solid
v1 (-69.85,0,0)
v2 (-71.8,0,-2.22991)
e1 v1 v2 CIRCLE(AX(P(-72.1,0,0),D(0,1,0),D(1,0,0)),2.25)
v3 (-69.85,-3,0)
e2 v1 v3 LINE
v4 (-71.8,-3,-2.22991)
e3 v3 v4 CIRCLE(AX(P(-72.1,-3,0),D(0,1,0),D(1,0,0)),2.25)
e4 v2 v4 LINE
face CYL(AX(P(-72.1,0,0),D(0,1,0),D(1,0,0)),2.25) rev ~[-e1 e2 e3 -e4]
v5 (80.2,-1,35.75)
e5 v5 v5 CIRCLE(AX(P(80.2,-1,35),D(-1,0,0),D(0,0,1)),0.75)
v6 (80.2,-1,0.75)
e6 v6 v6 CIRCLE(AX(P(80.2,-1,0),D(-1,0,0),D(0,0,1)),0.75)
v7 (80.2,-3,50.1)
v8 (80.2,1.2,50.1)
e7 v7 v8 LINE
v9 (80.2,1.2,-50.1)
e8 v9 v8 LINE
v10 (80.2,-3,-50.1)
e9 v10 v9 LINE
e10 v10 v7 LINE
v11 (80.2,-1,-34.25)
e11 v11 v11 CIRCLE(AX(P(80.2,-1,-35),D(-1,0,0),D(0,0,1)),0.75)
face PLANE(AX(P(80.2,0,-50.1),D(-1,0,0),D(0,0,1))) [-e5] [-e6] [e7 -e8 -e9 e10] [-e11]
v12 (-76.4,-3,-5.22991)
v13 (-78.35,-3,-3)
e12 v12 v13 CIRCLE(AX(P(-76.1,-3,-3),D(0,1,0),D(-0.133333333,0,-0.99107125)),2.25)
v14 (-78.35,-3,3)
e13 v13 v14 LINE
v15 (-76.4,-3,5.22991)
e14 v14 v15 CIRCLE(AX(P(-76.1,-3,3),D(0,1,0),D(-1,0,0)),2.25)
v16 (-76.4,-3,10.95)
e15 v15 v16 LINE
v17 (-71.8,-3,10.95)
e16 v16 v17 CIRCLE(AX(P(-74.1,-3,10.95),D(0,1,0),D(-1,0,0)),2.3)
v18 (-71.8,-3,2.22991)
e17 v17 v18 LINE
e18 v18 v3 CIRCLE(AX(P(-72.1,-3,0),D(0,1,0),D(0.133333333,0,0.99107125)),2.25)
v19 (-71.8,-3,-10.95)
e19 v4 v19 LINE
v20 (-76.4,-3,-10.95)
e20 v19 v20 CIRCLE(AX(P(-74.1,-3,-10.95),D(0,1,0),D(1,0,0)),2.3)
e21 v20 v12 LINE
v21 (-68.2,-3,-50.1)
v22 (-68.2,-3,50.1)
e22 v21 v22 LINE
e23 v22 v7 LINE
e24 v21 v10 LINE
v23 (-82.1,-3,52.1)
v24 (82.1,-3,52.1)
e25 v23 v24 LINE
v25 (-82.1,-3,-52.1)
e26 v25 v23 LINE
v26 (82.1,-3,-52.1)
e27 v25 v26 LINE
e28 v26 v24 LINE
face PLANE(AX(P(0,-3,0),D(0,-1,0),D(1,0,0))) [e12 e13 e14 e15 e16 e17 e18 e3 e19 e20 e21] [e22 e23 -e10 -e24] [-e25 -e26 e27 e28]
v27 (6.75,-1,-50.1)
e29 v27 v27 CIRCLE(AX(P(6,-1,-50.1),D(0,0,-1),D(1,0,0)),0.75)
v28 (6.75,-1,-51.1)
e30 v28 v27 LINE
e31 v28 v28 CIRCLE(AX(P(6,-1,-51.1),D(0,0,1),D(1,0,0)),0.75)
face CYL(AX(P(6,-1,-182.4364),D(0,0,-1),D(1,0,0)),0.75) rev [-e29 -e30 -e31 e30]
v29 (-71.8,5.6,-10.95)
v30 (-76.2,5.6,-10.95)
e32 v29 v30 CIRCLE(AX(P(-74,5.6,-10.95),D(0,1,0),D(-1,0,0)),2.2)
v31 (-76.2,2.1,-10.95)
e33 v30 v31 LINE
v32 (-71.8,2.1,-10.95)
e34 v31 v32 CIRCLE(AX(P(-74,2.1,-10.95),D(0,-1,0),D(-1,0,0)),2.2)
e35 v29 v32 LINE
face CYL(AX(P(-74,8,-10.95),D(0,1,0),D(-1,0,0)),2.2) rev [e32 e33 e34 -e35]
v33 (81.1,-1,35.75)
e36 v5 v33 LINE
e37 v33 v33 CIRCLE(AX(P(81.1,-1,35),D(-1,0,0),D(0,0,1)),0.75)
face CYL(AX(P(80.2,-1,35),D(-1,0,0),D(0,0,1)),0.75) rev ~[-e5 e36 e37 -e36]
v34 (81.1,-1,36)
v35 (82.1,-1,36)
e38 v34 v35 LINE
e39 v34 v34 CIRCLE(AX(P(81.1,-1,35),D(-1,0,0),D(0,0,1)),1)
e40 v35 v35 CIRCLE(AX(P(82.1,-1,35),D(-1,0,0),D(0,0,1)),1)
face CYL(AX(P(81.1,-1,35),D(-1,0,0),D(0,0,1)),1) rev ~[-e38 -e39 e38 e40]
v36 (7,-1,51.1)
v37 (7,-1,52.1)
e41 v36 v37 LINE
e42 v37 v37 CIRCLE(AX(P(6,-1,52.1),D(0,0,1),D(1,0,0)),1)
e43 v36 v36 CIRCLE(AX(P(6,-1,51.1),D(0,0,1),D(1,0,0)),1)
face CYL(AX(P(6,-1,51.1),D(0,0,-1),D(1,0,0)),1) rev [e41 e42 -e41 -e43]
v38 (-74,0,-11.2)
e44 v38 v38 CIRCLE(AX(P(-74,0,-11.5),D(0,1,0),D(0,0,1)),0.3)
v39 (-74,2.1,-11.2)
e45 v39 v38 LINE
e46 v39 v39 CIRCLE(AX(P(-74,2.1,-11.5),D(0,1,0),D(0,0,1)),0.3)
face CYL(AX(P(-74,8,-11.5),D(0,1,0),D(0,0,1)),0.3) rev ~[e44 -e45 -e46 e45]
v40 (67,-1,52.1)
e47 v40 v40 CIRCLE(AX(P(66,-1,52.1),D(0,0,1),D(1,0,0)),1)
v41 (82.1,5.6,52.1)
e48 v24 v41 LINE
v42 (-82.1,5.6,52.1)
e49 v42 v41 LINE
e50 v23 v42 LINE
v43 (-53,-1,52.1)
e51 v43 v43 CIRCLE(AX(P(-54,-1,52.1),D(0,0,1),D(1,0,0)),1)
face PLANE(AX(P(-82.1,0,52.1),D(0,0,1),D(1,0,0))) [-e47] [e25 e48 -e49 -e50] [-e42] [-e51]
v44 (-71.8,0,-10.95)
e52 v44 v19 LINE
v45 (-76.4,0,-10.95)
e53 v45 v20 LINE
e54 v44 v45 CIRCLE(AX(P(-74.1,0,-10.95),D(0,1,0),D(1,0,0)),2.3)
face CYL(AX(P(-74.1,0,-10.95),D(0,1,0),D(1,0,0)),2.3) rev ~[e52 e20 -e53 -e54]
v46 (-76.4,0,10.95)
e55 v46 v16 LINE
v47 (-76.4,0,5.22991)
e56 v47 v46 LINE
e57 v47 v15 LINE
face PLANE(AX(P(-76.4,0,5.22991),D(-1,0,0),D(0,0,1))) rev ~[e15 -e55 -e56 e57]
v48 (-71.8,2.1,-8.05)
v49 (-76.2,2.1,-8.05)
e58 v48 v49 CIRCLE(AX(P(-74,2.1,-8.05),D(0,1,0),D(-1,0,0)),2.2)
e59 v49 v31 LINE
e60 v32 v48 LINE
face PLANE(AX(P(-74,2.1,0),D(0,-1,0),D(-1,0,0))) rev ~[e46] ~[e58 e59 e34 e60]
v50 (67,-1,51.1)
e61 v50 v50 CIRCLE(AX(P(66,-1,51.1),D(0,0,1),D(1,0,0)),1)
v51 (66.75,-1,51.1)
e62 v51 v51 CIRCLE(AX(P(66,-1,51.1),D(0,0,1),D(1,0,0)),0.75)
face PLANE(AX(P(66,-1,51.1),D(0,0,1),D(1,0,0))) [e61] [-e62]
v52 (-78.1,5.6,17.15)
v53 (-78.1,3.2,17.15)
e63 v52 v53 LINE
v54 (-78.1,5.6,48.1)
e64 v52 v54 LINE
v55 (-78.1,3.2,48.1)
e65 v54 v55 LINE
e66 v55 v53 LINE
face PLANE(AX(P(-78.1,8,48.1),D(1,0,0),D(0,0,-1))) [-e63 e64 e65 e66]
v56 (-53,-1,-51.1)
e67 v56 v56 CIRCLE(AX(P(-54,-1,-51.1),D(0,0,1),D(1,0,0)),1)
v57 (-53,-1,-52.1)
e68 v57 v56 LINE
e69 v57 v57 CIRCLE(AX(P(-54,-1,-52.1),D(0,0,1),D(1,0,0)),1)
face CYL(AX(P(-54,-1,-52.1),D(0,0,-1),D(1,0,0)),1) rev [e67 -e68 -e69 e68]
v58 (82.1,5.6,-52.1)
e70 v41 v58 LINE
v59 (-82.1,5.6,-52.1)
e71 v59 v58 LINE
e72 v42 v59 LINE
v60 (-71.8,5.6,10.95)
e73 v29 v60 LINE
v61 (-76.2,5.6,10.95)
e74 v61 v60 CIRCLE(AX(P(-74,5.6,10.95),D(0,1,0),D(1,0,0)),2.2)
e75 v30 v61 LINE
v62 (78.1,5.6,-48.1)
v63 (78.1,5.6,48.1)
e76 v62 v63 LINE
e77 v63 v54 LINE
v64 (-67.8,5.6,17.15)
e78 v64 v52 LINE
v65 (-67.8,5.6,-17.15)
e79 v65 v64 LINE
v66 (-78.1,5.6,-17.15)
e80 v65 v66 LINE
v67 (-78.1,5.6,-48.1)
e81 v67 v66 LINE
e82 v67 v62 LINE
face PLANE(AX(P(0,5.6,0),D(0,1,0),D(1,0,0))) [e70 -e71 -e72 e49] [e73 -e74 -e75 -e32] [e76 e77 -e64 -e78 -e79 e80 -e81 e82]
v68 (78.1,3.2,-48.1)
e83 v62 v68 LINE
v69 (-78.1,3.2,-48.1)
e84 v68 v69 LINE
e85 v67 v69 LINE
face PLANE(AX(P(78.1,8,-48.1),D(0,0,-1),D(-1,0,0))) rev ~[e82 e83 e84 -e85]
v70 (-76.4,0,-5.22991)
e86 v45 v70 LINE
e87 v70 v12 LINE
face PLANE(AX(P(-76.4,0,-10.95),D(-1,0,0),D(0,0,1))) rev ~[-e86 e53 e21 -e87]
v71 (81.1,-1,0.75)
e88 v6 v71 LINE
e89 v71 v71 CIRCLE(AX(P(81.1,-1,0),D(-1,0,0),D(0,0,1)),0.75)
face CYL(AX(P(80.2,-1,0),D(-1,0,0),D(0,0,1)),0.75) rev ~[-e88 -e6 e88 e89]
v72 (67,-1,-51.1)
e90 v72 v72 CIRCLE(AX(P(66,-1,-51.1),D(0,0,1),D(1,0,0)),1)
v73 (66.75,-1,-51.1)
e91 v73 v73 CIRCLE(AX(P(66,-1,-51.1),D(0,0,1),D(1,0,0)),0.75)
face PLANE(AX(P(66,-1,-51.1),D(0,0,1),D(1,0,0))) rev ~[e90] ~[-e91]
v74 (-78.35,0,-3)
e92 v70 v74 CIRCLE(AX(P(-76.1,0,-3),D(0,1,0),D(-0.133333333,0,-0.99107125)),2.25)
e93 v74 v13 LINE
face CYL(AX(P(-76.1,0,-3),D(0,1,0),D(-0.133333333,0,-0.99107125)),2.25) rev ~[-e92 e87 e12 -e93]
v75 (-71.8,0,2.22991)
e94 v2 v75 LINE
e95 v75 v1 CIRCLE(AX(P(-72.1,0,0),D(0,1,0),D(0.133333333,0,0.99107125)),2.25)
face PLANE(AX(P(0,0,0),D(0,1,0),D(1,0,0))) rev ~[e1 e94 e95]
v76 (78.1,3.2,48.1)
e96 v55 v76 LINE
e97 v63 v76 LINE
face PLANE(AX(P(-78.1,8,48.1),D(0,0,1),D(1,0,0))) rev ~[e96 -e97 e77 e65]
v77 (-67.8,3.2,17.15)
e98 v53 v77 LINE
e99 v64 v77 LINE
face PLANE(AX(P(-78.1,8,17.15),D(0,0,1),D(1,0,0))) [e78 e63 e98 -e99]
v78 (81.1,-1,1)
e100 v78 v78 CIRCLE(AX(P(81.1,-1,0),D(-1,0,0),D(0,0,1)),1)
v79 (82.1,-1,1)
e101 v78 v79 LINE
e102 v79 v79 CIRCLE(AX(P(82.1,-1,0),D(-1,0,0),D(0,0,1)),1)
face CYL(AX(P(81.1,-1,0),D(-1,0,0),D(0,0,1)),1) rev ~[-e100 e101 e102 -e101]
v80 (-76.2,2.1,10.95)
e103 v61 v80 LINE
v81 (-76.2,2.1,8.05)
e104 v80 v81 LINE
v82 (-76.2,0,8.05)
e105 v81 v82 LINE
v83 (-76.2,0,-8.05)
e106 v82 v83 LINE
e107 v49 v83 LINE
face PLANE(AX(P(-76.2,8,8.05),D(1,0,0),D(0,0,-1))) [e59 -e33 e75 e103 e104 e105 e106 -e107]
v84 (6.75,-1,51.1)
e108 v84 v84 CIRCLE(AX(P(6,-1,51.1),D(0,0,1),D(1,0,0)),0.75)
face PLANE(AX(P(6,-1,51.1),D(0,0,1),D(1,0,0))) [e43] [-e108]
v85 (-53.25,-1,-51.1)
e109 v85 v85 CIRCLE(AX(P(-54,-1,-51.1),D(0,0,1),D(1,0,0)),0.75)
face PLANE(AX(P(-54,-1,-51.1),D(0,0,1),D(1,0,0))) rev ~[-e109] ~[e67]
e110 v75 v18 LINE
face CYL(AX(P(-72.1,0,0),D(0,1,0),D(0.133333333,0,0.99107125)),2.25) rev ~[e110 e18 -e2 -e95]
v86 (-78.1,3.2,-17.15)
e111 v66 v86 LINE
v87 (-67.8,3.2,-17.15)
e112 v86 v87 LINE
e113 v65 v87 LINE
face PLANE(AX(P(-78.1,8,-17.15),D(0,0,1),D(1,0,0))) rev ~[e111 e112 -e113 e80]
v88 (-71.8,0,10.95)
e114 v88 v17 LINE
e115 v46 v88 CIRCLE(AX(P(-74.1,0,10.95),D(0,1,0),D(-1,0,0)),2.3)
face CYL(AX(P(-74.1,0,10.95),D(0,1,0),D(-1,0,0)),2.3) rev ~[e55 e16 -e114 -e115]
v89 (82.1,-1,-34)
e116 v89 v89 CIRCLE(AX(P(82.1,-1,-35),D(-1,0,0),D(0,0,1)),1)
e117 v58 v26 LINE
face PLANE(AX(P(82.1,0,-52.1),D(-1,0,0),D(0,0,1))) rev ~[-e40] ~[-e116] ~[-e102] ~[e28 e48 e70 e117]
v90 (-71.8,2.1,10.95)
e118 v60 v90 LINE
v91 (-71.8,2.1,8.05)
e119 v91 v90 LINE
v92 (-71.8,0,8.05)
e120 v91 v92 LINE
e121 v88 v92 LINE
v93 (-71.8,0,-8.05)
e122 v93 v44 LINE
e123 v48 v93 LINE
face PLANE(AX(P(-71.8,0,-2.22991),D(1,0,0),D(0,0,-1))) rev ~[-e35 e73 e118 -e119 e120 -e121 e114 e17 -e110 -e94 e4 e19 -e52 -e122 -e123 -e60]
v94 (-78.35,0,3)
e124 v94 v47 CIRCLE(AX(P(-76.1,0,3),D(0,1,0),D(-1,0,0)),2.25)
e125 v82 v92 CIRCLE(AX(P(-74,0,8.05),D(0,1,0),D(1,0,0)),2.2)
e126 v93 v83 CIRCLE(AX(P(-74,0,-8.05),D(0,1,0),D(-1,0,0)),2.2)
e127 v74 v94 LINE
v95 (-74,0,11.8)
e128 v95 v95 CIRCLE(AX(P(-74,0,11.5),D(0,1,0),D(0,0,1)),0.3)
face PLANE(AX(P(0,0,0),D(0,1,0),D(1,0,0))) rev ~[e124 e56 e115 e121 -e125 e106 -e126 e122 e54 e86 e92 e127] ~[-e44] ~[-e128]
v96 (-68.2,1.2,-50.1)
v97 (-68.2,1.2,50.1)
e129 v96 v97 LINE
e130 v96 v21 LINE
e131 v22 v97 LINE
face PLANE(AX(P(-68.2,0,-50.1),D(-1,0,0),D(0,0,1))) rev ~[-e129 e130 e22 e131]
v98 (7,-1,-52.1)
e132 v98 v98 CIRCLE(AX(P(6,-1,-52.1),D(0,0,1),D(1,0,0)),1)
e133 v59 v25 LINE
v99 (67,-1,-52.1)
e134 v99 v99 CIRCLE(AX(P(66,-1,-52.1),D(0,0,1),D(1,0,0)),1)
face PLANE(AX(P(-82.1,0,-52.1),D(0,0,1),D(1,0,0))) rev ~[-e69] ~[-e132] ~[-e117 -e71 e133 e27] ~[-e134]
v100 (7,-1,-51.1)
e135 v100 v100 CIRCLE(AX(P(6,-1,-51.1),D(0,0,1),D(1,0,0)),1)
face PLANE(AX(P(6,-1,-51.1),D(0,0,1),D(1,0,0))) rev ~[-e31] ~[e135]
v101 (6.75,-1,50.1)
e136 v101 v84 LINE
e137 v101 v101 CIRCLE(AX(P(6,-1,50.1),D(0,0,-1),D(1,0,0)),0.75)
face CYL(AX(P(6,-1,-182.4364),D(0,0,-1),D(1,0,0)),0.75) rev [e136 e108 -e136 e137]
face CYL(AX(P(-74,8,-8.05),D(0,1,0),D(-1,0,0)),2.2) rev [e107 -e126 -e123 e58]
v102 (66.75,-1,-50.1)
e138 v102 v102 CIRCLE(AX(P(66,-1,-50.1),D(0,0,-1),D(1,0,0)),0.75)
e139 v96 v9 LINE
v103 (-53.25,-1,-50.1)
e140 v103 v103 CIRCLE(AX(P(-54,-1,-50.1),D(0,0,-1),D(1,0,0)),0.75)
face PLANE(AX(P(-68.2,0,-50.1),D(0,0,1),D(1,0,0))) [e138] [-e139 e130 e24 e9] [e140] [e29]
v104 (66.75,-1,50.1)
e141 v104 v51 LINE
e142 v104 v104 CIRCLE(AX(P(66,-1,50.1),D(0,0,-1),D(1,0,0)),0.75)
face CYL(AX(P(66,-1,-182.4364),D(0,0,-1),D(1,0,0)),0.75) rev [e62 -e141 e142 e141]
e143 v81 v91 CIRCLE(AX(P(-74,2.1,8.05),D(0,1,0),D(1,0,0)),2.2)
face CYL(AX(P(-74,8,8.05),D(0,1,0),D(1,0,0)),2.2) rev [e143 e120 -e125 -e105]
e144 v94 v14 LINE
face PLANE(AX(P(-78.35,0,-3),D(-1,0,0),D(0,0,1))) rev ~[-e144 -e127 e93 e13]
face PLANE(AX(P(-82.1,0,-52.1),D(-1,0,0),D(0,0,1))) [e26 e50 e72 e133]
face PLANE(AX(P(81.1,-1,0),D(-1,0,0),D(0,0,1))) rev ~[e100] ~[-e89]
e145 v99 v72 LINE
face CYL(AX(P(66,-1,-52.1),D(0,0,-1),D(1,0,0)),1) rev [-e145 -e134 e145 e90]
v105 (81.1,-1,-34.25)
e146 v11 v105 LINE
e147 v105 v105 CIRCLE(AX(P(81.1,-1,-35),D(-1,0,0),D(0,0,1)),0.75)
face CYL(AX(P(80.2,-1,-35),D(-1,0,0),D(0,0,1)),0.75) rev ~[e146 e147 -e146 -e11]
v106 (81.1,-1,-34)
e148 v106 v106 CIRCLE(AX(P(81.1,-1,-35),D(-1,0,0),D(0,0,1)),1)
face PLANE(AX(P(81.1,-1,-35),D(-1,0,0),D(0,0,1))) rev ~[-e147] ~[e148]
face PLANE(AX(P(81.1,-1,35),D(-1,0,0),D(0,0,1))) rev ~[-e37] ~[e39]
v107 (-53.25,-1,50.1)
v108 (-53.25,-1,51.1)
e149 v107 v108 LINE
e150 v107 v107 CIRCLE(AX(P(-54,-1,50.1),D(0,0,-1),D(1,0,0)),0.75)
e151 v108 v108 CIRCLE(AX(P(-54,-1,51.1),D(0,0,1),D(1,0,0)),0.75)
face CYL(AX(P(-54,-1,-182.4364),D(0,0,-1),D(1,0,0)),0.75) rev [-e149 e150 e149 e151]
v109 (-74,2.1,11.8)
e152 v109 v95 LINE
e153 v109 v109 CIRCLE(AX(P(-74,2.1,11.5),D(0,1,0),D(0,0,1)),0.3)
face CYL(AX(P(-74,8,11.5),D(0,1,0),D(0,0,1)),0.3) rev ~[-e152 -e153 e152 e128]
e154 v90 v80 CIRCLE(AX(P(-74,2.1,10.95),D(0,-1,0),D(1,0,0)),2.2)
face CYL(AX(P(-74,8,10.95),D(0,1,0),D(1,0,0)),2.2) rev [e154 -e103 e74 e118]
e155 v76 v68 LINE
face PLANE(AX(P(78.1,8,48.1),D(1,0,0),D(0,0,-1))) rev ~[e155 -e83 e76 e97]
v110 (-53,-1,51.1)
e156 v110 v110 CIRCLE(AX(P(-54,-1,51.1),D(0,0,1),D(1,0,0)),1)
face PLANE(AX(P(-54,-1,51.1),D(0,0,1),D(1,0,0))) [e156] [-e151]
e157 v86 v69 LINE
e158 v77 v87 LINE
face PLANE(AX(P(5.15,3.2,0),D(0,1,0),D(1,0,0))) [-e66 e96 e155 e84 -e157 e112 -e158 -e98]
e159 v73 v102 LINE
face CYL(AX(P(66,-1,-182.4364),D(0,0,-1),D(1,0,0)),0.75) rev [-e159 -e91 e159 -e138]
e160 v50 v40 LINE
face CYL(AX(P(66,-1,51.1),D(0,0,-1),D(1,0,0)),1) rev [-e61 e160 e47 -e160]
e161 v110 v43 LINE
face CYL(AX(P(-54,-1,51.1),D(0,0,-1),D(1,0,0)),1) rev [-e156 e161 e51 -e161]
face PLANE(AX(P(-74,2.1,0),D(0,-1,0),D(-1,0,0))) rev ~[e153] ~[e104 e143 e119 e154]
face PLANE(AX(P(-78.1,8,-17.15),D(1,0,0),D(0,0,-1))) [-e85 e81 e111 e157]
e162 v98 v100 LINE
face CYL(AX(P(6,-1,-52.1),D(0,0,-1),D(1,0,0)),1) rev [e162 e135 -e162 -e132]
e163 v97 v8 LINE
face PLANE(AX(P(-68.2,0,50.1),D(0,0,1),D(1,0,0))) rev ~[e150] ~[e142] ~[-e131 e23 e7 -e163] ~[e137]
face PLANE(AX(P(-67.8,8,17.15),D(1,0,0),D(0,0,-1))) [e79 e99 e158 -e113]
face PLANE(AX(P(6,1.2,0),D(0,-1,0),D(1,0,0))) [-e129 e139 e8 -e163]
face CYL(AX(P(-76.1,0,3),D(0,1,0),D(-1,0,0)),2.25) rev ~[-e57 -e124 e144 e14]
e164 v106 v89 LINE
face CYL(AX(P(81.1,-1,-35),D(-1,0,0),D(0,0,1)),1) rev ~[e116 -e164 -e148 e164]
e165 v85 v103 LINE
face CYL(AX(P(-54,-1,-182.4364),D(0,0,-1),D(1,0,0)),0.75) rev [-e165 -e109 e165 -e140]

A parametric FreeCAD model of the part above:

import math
import FreeCAD as App
import Part
import Sketcher

doc = App.newDocument("Part")
body = doc.addObject("PartDesign::Body", "Body")

# Sketch on XZ plane
sketch1 = body.newObject("Sketcher::SketchObject", "Sketch")
sketch1.AttachmentSupport = (doc.getObject("XZ_Plane"), [""])
sketch1.MapMode = "FlatFace"
sketch1.addGeometry([
    Part.LineSegment(App.Vector(-82.1, -52.1, 0), App.Vector(-82.1, 52.1, 0)),
    Part.LineSegment(App.Vector(-82.1, 52.1, 0), App.Vector(82.1, 52.1, 0)),
    Part.LineSegment(App.Vector(82.1, 52.1, 0), App.Vector(82.1, -52.1, 0)),
    Part.LineSegment(App.Vector(82.1, -52.1, 0), App.Vector(-82.1, -52.1, 0)),
], False)
sketch1.addConstraint([
    Sketcher.Constraint("Coincident", 0, 2, 1, 1),
    Sketcher.Constraint("Coincident", 1, 2, 2, 1),
    Sketcher.Constraint("Coincident", 2, 2, 3, 1),
    Sketcher.Constraint("Coincident", 3, 2, 0, 1),
    Sketcher.Constraint("Vertical", 0),
    Sketcher.Constraint("Horizontal", 1),
    Sketcher.Constraint("Vertical", 2),
    Sketcher.Constraint("Horizontal", 3),
    Sketcher.Constraint("Symmetric", 0, 2, 2, 2, -1, 1),
    Sketcher.Constraint("DistanceX", 1, 1, 1, 2, 164.2),
    Sketcher.Constraint("DistanceY", 0, 1, 0, 2, 104.2),
])
pad1 = body.newObject("PartDesign::Pad", "Pad")
pad1.Profile = sketch1
pad1.Length = 8
pad1.Reversed = True

# Sketch on XZ plane
sketch2 = body.newObject("Sketcher::SketchObject", "Sketch001")
sketch2.AttachmentSupport = (doc.getObject("XZ_Plane"), [""])
sketch2.MapMode = "FlatFace"
sketch2.AttachmentOffset = App.Placement(App.Vector(0, 0, -8), App.Rotation())
sketch2.addGeometry([
    Part.Circle(App.Vector(-74, -11.5, 0), App.Vector(0, 0, 1), 0.3),  # 0
    Part.Circle(App.Vector(-74, 11.5, 0), App.Vector(0, 0, 1), 0.3),  # 1
    Part.LineSegment(App.Vector(-76.2, -8.05, 0), App.Vector(-76.2, 8.05, 0)),  # 2
    Part.ArcOfCircle(Part.Circle(App.Vector(-74, 8.05, 0), App.Vector(0, 0, 1), 2.2), math.radians(0), math.radians(180)),  # 3
    Part.LineSegment(App.Vector(-71.8, 8.05, 0), App.Vector(-71.8, -8.05, 0)),  # 4
    Part.ArcOfCircle(Part.Circle(App.Vector(-74, -8.05, 0), App.Vector(0, 0, 1), 2.2), math.radians(180), math.radians(360)),  # 5
], False)
sketch2.addConstraint([
    Sketcher.Constraint("Tangent", 2, 2, 3, 2),
    Sketcher.Constraint("Tangent", 3, 1, 4, 1),
    Sketcher.Constraint("Tangent", 4, 2, 5, 2),
    Sketcher.Constraint("Tangent", 5, 1, 2, 1),
    Sketcher.Constraint("Vertical", 2),
    Sketcher.Constraint("Vertical", 4),
    Sketcher.Constraint("Equal", 0, 1),
    Sketcher.Constraint("Symmetric", 0, 3, 1, 3, -1),
    Sketcher.Constraint("Vertical", 1, 3, 3, 3),
    Sketcher.Constraint("Diameter", 0, 0.6),
    Sketcher.Constraint("Radius", 3, 2.2),
    Sketcher.Constraint("DistanceY", 2, 1, 2, 2, 16.1),
    Sketcher.Constraint("DistanceX", 0, 3, -1, 1, 74.0),
    Sketcher.Constraint("DistanceY", 0, 3, 1, 3, 23.0),
    Sketcher.Constraint("DistanceY", -1, 1, 3, 3, 8.05),
])
pocket1 = body.newObject("PartDesign::Pocket", "Pocket")
pocket1.Profile = sketch2
pocket1.Type = "ThroughAll"
pocket1.Reversed = True

# Sketch on XZ plane
sketch3 = body.newObject("Sketcher::SketchObject", "Sketch002")
sketch3.AttachmentSupport = (doc.getObject("XZ_Plane"), [""])
sketch3.MapMode = "FlatFace"
sketch3.AttachmentOffset = App.Placement(App.Vector(0, 0, -8), App.Rotation())
sketch3.addGeometry([
    Part.LineSegment(App.Vector(-71.8, 10.95, 0), App.Vector(-71.8, -10.95, 0)),
    Part.ArcOfCircle(Part.Circle(App.Vector(-74, -10.95, 0), App.Vector(0, 0, 1), 2.2), math.radians(180), math.radians(360)),
    Part.LineSegment(App.Vector(-76.2, -10.95, 0), App.Vector(-76.2, 10.95, 0)),
    Part.ArcOfCircle(Part.Circle(App.Vector(-74, 10.95, 0), App.Vector(0, 0, 1), 2.2), math.radians(0), math.radians(180)),
], False)
sketch3.addConstraint([
    Sketcher.Constraint("Tangent", 0, 2, 1, 2),
    Sketcher.Constraint("Tangent", 1, 1, 2, 1),
    Sketcher.Constraint("Tangent", 2, 2, 3, 2),
    Sketcher.Constraint("Tangent", 3, 1, 0, 1),
    Sketcher.Constraint("Vertical", 0),
    Sketcher.Constraint("Vertical", 2),
    Sketcher.Constraint("Radius", 1, 2.2),
    Sketcher.Constraint("DistanceY", 0, 2, 0, 1, 21.9),
    Sketcher.Constraint("DistanceX", 1, 3, -1, 1, 74.0),
    Sketcher.Constraint("DistanceY", 1, 3, -1, 1, 10.95),
])
pocket2 = body.newObject("PartDesign::Pocket", "Pocket001")
pocket2.Profile = sketch3
pocket2.Length = 5.9
pocket2.Reversed = True

# Sketch on XZ plane
sketch4 = body.newObject("Sketcher::SketchObject", "Sketch003")
sketch4.AttachmentSupport = (doc.getObject("XZ_Plane"), [""])
sketch4.MapMode = "FlatFace"
sketch4.addGeometry([
    Part.LineSegment(App.Vector(-68.2, 50.1, 0), App.Vector(-68.2, -50.1, 0)),
    Part.LineSegment(App.Vector(-68.2, -50.1, 0), App.Vector(80.2, -50.1, 0)),
    Part.LineSegment(App.Vector(80.2, -50.1, 0), App.Vector(80.2, 50.1, 0)),
    Part.LineSegment(App.Vector(80.2, 50.1, 0), App.Vector(-68.2, 50.1, 0)),
], False)
sketch4.addConstraint([
    Sketcher.Constraint("Coincident", 0, 2, 1, 1),
    Sketcher.Constraint("Coincident", 1, 2, 2, 1),
    Sketcher.Constraint("Coincident", 2, 2, 3, 1),
    Sketcher.Constraint("Coincident", 3, 2, 0, 1),
    Sketcher.Constraint("Vertical", 0),
    Sketcher.Constraint("Horizontal", 1),
    Sketcher.Constraint("Vertical", 2),
    Sketcher.Constraint("Horizontal", 3),
    Sketcher.Constraint("DistanceX", 1, 1, 1, 2, 148.4),
    Sketcher.Constraint("DistanceY", 0, 2, 0, 1, 100.2),
    Sketcher.Constraint("DistanceX", 0, 2, -1, 1, 68.2),
    Sketcher.Constraint("DistanceY", 0, 2, -1, 1, 50.1),
])
pocket3 = body.newObject("PartDesign::Pocket", "Pocket002")
pocket3.Profile = sketch4
pocket3.Length = 1.2

# Sketch on XZ plane
sketch5 = body.newObject("Sketcher::SketchObject", "Sketch004")
sketch5.AttachmentSupport = (doc.getObject("XZ_Plane"), [""])
sketch5.MapMode = "FlatFace"
sketch5.addGeometry([
    Part.LineSegment(App.Vector(-82.1, 52.1, 0), App.Vector(-82.1, -52.1, 0)),  # 0
    Part.LineSegment(App.Vector(-82.1, -52.1, 0), App.Vector(82.1, -52.1, 0)),  # 1
    Part.LineSegment(App.Vector(82.1, -52.1, 0), App.Vector(82.1, 52.1, 0)),  # 2
    Part.LineSegment(App.Vector(82.1, 52.1, 0), App.Vector(-82.1, 52.1, 0)),  # 3
    Part.LineSegment(App.Vector(-71.8, -2.22991, 0), App.Vector(-71.8, -10.95, 0)),  # 4
    Part.ArcOfCircle(Part.Circle(App.Vector(-74.1, -10.95, 0), App.Vector(0, 0, 1), 2.3), math.radians(180), math.radians(360)),  # 5
    Part.LineSegment(App.Vector(-76.4, -10.95, 0), App.Vector(-76.4, -5.22991, 0)),  # 6
    Part.ArcOfCircle(Part.Circle(App.Vector(-76.1, -3, 0), App.Vector(0, 0, 1), 2.25), math.radians(180), math.radians(262.337744)),  # 7
    Part.LineSegment(App.Vector(-78.35, -3, 0), App.Vector(-78.35, 3, 0)),  # 8
    Part.ArcOfCircle(Part.Circle(App.Vector(-76.1, 3, 0), App.Vector(0, 0, 1), 2.25), math.radians(97.662256), math.radians(180)),  # 9
    Part.LineSegment(App.Vector(-76.4, 5.22991, 0), App.Vector(-76.4, 10.95, 0)),  # 10
    Part.ArcOfCircle(Part.Circle(App.Vector(-74.1, 10.95, 0), App.Vector(0, 0, 1), 2.3), math.radians(0), math.radians(180)),  # 11
    Part.LineSegment(App.Vector(-71.8, 10.95, 0), App.Vector(-71.8, 2.22991, 0)),  # 12
    Part.ArcOfCircle(Part.Circle(App.Vector(-72.1, 0, 0), App.Vector(0, 0, 1), 2.25), math.radians(0), math.radians(82.337744)),  # 13
    Part.ArcOfCircle(Part.Circle(App.Vector(-72.1, 0, 0), App.Vector(0, 0, 1), 2.25), math.radians(-82.337744), math.radians(0)),  # 14
    Part.LineSegment(App.Vector(80.2, -50.1, 0), App.Vector(-68.2, -50.1, 0)),  # 15
    Part.LineSegment(App.Vector(-68.2, -50.1, 0), App.Vector(-68.2, 50.1, 0)),  # 16
    Part.LineSegment(App.Vector(-68.2, 50.1, 0), App.Vector(80.2, 50.1, 0)),  # 17
    Part.LineSegment(App.Vector(80.2, 50.1, 0), App.Vector(80.2, -50.1, 0)),  # 18
], False)
sketch5.addConstraint([
    Sketcher.Constraint("Coincident", 0, 2, 1, 1),
    Sketcher.Constraint("Coincident", 1, 2, 2, 1),
    Sketcher.Constraint("Coincident", 2, 2, 3, 1),
    Sketcher.Constraint("Coincident", 3, 2, 0, 1),
    Sketcher.Constraint("Tangent", 4, 2, 5, 2),
    Sketcher.Constraint("Tangent", 5, 1, 6, 1),
    Sketcher.Constraint("Coincident", 6, 2, 7, 2),
    Sketcher.Constraint("Tangent", 7, 1, 8, 1),
    Sketcher.Constraint("Tangent", 8, 2, 9, 2),
    Sketcher.Constraint("Coincident", 9, 1, 10, 1),
    Sketcher.Constraint("Tangent", 10, 2, 11, 2),
    Sketcher.Constraint("Tangent", 11, 1, 12, 1),
    Sketcher.Constraint("Coincident", 12, 2, 13, 2),
    Sketcher.Constraint("Tangent", 13, 1, 14, 2),
    Sketcher.Constraint("Coincident", 14, 1, 4, 1),
    Sketcher.Constraint("Coincident", 15, 2, 16, 1),
    Sketcher.Constraint("Coincident", 16, 2, 17, 1),
    Sketcher.Constraint("Coincident", 17, 2, 18, 1),
    Sketcher.Constraint("Coincident", 18, 2, 15, 1),
    Sketcher.Constraint("Vertical", 0),
    Sketcher.Constraint("Horizontal", 1),
    Sketcher.Constraint("Vertical", 2),
    Sketcher.Constraint("Horizontal", 3),
    Sketcher.Constraint("Vertical", 4),
    Sketcher.Constraint("Vertical", 6),
    Sketcher.Constraint("Vertical", 8),
    Sketcher.Constraint("Vertical", 10),
    Sketcher.Constraint("Vertical", 12),
    Sketcher.Constraint("Horizontal", 15),
    Sketcher.Constraint("Vertical", 16),
    Sketcher.Constraint("Horizontal", 17),
    Sketcher.Constraint("Vertical", 18),
    Sketcher.Constraint("Equal", 7, 9),
    Sketcher.Constraint("Equal", 5, 11),
    Sketcher.Constraint("Equal", 9, 13),
    Sketcher.Constraint("Equal", 13, 14),
    Sketcher.Constraint("Symmetric", 0, 2, 2, 2, -1, 1),
    Sketcher.Constraint("Symmetric", 5, 3, 11, 3, -1),
    Sketcher.Constraint("PointOnObject", 13, 3, -1),
    Sketcher.Constraint("PointOnObject", 13, 1, -1),
    Sketcher.Constraint("Equal", 6, 10),
    Sketcher.Constraint("Radius", 5, 2.3),
    Sketcher.Constraint("DistanceY", 8, 1, 8, 2, 6.0),
    Sketcher.Constraint("Radius", 7, 2.25),
    Sketcher.Constraint("DistanceX", 1, 1, 1, 2, 164.2),
    Sketcher.Constraint("DistanceX", 15, 2, 15, 1, 148.4),
    Sketcher.Constraint("DistanceY", 0, 2, 0, 1, 104.2),
    Sketcher.Constraint("DistanceY", 16, 1, 16, 2, 100.2),
    Sketcher.Constraint("DistanceX", 7, 3, 5, 3, 2.0),
    Sketcher.Constraint("DistanceX", 7, 3, 13, 3, 4.0),
    Sketcher.Constraint("DistanceX", 0, 2, 5, 3, 8.0),
    Sketcher.Constraint("DistanceY", 0, 2, 15, 2, 2.0),
    Sketcher.Constraint("DistanceX", 11, 1, 17, 2, 152.0),
    Sketcher.Constraint("DistanceY", 5, 3, 11, 3, 21.9),
])
pad2 = body.newObject("PartDesign::Pad", "Pad001")
pad2.Profile = sketch5
pad2.Length = 3

# Sketch on XY plane
sketch6 = body.newObject("Sketcher::SketchObject", "Sketch005")
sketch6.AttachmentSupport = (doc.getObject("XY_Plane"), [""])
sketch6.MapMode = "FlatFace"
sketch6.AttachmentOffset = App.Placement(App.Vector(0, 0, -50.1), App.Rotation())
sketch6.addGeometry([
    Part.Circle(App.Vector(6, -1, 0), App.Vector(0, 0, 1), 0.75),
    Part.Circle(App.Vector(-54, -1, 0), App.Vector(0, 0, 1), 0.75),
    Part.Circle(App.Vector(66, -1, 0), App.Vector(0, 0, 1), 0.75),
], False)
sketch6.addConstraint([
    Sketcher.Constraint("Equal", 0, 1),
    Sketcher.Constraint("Equal", 1, 2),
    Sketcher.Constraint("Horizontal", 0, 3, 1, 3),
    Sketcher.Constraint("Horizontal", 1, 3, 2, 3),
    Sketcher.Constraint("Diameter", 0, 1.5),
    Sketcher.Constraint("DistanceX", -1, 1, 0, 3, 6.0),
    Sketcher.Constraint("DistanceY", 0, 3, -1, 1, 1.0),
    Sketcher.Constraint("DistanceX", 1, 3, -1, 1, 54.0),
    Sketcher.Constraint("DistanceX", -1, 1, 2, 3, 66.0),
])
pocket4 = body.newObject("PartDesign::Pocket", "Pocket003")
pocket4.Profile = sketch6
pocket4.Type = "ThroughAll"
pocket4.Midplane = True

# Sketch on XY plane
sketch7 = body.newObject("Sketcher::SketchObject", "Sketch006")
sketch7.AttachmentSupport = (doc.getObject("XY_Plane"), [""])
sketch7.MapMode = "FlatFace"
sketch7.AttachmentOffset = App.Placement(App.Vector(0, 0, -52.1), App.Rotation())
sketch7.addGeometry([
    Part.Circle(App.Vector(6, -1, 0), App.Vector(0, 0, 1), 1),  # 0
    Part.Circle(App.Vector(6, -1, 0), App.Vector(0, 0, 1), 0.75),  # 1
    Part.Circle(App.Vector(66, -1, 0), App.Vector(0, 0, 1), 1),  # 2
    Part.Circle(App.Vector(66, -1, 0), App.Vector(0, 0, 1), 0.75),  # 3
    Part.Circle(App.Vector(-54, -1, 0), App.Vector(0, 0, 1), 1),  # 4
    Part.Circle(App.Vector(-54, -1, 0), App.Vector(0, 0, 1), 0.75),  # 5
], False)
sketch7.addConstraint([
    Sketcher.Constraint("Coincident", 1, 3, 0, 3),
    Sketcher.Constraint("Coincident", 3, 3, 2, 3),
    Sketcher.Constraint("Coincident", 5, 3, 4, 3),
    Sketcher.Constraint("Equal", 0, 2),
    Sketcher.Constraint("Equal", 1, 3),
    Sketcher.Constraint("Equal", 2, 4),
    Sketcher.Constraint("Equal", 3, 5),
    Sketcher.Constraint("Horizontal", 1, 3, 2, 3),
    Sketcher.Constraint("Horizontal", 3, 3, 4, 3),
    Sketcher.Constraint("Diameter", 0, 2.0),
    Sketcher.Constraint("Diameter", 1, 1.5),
    Sketcher.Constraint("DistanceX", -1, 1, 0, 3, 6.0),
    Sketcher.Constraint("DistanceY", 0, 3, -1, 1, 1.0),
    Sketcher.Constraint("DistanceX", -1, 1, 2, 3, 66.0),
    Sketcher.Constraint("DistanceX", 4, 3, -1, 1, 54.0),
])
pocket5 = body.newObject("PartDesign::Pocket", "Pocket004")
pocket5.Profile = sketch7
pocket5.Length = 1
pocket5.Reversed = True

# Sketch on XY plane
sketch8 = body.newObject("Sketcher::SketchObject", "Sketch007")
sketch8.AttachmentSupport = (doc.getObject("XY_Plane"), [""])
sketch8.MapMode = "FlatFace"
sketch8.AttachmentOffset = App.Placement(App.Vector(0, 0, 51.1), App.Rotation())
sketch8.addGeometry([
    Part.Circle(App.Vector(6, -1, 0), App.Vector(0, 0, 1), 1),  # 0
    Part.Circle(App.Vector(6, -1, 0), App.Vector(0, 0, 1), 0.75),  # 1
    Part.Circle(App.Vector(66, -1, 0), App.Vector(0, 0, 1), 1),  # 2
    Part.Circle(App.Vector(66, -1, 0), App.Vector(0, 0, 1), 0.75),  # 3
    Part.Circle(App.Vector(-54, -1, 0), App.Vector(0, 0, 1), 1),  # 4
    Part.Circle(App.Vector(-54, -1, 0), App.Vector(0, 0, 1), 0.75),  # 5
], False)
sketch8.addConstraint([
    Sketcher.Constraint("Coincident", 1, 3, 0, 3),
    Sketcher.Constraint("Coincident", 3, 3, 2, 3),
    Sketcher.Constraint("Coincident", 5, 3, 4, 3),
    Sketcher.Constraint("Equal", 0, 2),
    Sketcher.Constraint("Equal", 1, 3),
    Sketcher.Constraint("Equal", 2, 4),
    Sketcher.Constraint("Equal", 3, 5),
    Sketcher.Constraint("Horizontal", 1, 3, 2, 3),
    Sketcher.Constraint("Horizontal", 3, 3, 4, 3),
    Sketcher.Constraint("Diameter", 0, 2.0),
    Sketcher.Constraint("Diameter", 1, 1.5),
    Sketcher.Constraint("DistanceX", -1, 1, 0, 3, 6.0),
    Sketcher.Constraint("DistanceY", 0, 3, -1, 1, 1.0),
    Sketcher.Constraint("DistanceX", -1, 1, 2, 3, 66.0),
    Sketcher.Constraint("DistanceX", 4, 3, -1, 1, 54.0),
])
pocket6 = body.newObject("PartDesign::Pocket", "Pocket005")
pocket6.Profile = sketch8
pocket6.Length = 1
pocket6.Reversed = True

# Sketch on YZ plane
sketch9 = body.newObject("Sketcher::SketchObject", "Sketch008")
sketch9.AttachmentSupport = (doc.getObject("YZ_Plane"), [""])
sketch9.MapMode = "FlatFace"
sketch9.AttachmentOffset = App.Placement(App.Vector(0, 0, 80.2), App.Rotation())
sketch9.addGeometry([
    Part.Circle(App.Vector(-1, -35, 0), App.Vector(0, 0, 1), 0.75),
    Part.Circle(App.Vector(-1, 0, 0), App.Vector(0, 0, 1), 0.75),
    Part.Circle(App.Vector(-1, 35, 0), App.Vector(0, 0, 1), 0.75),
], False)
sketch9.addConstraint([
    Sketcher.Constraint("Equal", 0, 1),
    Sketcher.Constraint("Equal", 1, 2),
    Sketcher.Constraint("Symmetric", 0, 3, 2, 3, -1),
    Sketcher.Constraint("PointOnObject", 1, 3, -1),
    Sketcher.Constraint("Vertical", 0, 3, 1, 3),
    Sketcher.Constraint("Diameter", 0, 1.5),
    Sketcher.Constraint("DistanceX", 0, 3, -1, 1, 1.0),
    Sketcher.Constraint("DistanceY", 0, 3, -1, 1, 35.0),
])
pocket7 = body.newObject("PartDesign::Pocket", "Pocket006")
pocket7.Profile = sketch9
pocket7.Type = "ThroughAll"
pocket7.Reversed = True

# Sketch on YZ plane
sketch10 = body.newObject("Sketcher::SketchObject", "Sketch009")
sketch10.AttachmentSupport = (doc.getObject("YZ_Plane"), [""])
sketch10.MapMode = "FlatFace"
sketch10.AttachmentOffset = App.Placement(App.Vector(0, 0, 81.1), App.Rotation())
sketch10.addGeometry([
    Part.Circle(App.Vector(-1, 0, 0), App.Vector(0, 0, 1), 1),  # 0
    Part.Circle(App.Vector(-1, 0, 0), App.Vector(0, 0, 1), 0.75),  # 1
    Part.Circle(App.Vector(-1, -35, 0), App.Vector(0, 0, 1), 1),  # 2
    Part.Circle(App.Vector(-1, -35, 0), App.Vector(0, 0, 1), 0.75),  # 3
    Part.Circle(App.Vector(-1, 35, 0), App.Vector(0, 0, 1), 1),  # 4
    Part.Circle(App.Vector(-1, 35, 0), App.Vector(0, 0, 1), 0.75),  # 5
], False)
sketch10.addConstraint([
    Sketcher.Constraint("Coincident", 1, 3, 0, 3),
    Sketcher.Constraint("Coincident", 3, 3, 2, 3),
    Sketcher.Constraint("Coincident", 5, 3, 4, 3),
    Sketcher.Constraint("Equal", 0, 2),
    Sketcher.Constraint("Equal", 1, 3),
    Sketcher.Constraint("Equal", 2, 4),
    Sketcher.Constraint("Equal", 3, 5),
    Sketcher.Constraint("Symmetric", 2, 3, 4, 3, -1),
    Sketcher.Constraint("PointOnObject", 0, 3, -1),
    Sketcher.Constraint("Vertical", 1, 3, 2, 3),
    Sketcher.Constraint("Diameter", 0, 2.0),
    Sketcher.Constraint("Diameter", 1, 1.5),
    Sketcher.Constraint("DistanceX", 0, 3, -1, 1, 1.0),
    Sketcher.Constraint("DistanceY", 2, 3, -1, 1, 35.0),
])
pocket8 = body.newObject("PartDesign::Pocket", "Pocket007")
pocket8.Profile = sketch10
pocket8.Length = 1
pocket8.Reversed = True

# Sketch on XZ plane
sketch11 = body.newObject("Sketcher::SketchObject", "Sketch010")
sketch11.AttachmentSupport = (doc.getObject("XZ_Plane"), [""])
sketch11.MapMode = "FlatFace"
sketch11.AttachmentOffset = App.Placement(App.Vector(0, 0, -8), App.Rotation())
sketch11.addGeometry([
    Part.LineSegment(App.Vector(-67.8, -17.15, 0), App.Vector(-67.8, 17.15, 0)),  # 0
    Part.LineSegment(App.Vector(-67.8, 17.15, 0), App.Vector(-78.1, 17.15, 0)),  # 1
    Part.LineSegment(App.Vector(-78.1, 17.15, 0), App.Vector(-78.1, 48.1, 0)),  # 2
    Part.LineSegment(App.Vector(-78.1, 48.1, 0), App.Vector(78.1, 48.1, 0)),  # 3
    Part.LineSegment(App.Vector(78.1, 48.1, 0), App.Vector(78.1, -48.1, 0)),  # 4
    Part.LineSegment(App.Vector(78.1, -48.1, 0), App.Vector(-78.1, -48.1, 0)),  # 5
    Part.LineSegment(App.Vector(-78.1, -48.1, 0), App.Vector(-78.1, -17.15, 0)),  # 6
    Part.LineSegment(App.Vector(-78.1, -17.15, 0), App.Vector(-67.8, -17.15, 0)),  # 7
], False)
sketch11.addConstraint([
    Sketcher.Constraint("Coincident", 0, 2, 1, 1),
    Sketcher.Constraint("Coincident", 1, 2, 2, 1),
    Sketcher.Constraint("Coincident", 2, 2, 3, 1),
    Sketcher.Constraint("Coincident", 3, 2, 4, 1),
    Sketcher.Constraint("Coincident", 4, 2, 5, 1),
    Sketcher.Constraint("Coincident", 5, 2, 6, 1),
    Sketcher.Constraint("Coincident", 6, 2, 7, 1),
    Sketcher.Constraint("Coincident", 7, 2, 0, 1),
    Sketcher.Constraint("Vertical", 0),
    Sketcher.Constraint("Horizontal", 1),
    Sketcher.Constraint("Vertical", 2),
    Sketcher.Constraint("Horizontal", 3),
    Sketcher.Constraint("Vertical", 4),
    Sketcher.Constraint("Horizontal", 5),
    Sketcher.Constraint("Vertical", 6),
    Sketcher.Constraint("Horizontal", 7),
    Sketcher.Constraint("Symmetric", 2, 2, 4, 2, -1, 1),
    Sketcher.Constraint("Symmetric", 1, 2, 6, 2, -1),
    Sketcher.Constraint("DistanceX", 1, 2, 1, 1, 10.3),
    Sketcher.Constraint("DistanceX", 3, 1, 3, 2, 156.2),
    Sketcher.Constraint("DistanceY", 0, 1, 0, 2, 34.3),
    Sketcher.Constraint("DistanceY", 4, 2, 4, 1, 96.2),
])
pocket9 = body.newObject("PartDesign::Pocket", "Pocket008")
pocket9.Profile = sketch11
pocket9.Length = 4.8
pocket9.Reversed = True

# Sketch on XZ plane
sketch12 = body.newObject("Sketcher::SketchObject", "Sketch011")
sketch12.AttachmentSupport = (doc.getObject("XZ_Plane"), [""])
sketch12.MapMode = "FlatFace"
sketch12.AttachmentOffset = App.Placement(App.Vector(0, 0, -8), App.Rotation())
sketch12.addGeometry([
    Part.LineSegment(App.Vector(-82.1, -52.1, 0), App.Vector(-82.1, 52.1, 0)),
    Part.LineSegment(App.Vector(-82.1, 52.1, 0), App.Vector(82.1, 52.1, 0)),
    Part.LineSegment(App.Vector(82.1, 52.1, 0), App.Vector(82.1, -52.1, 0)),
    Part.LineSegment(App.Vector(82.1, -52.1, 0), App.Vector(-82.1, -52.1, 0)),
], False)
sketch12.addConstraint([
    Sketcher.Constraint("Coincident", 0, 2, 1, 1),
    Sketcher.Constraint("Coincident", 1, 2, 2, 1),
    Sketcher.Constraint("Coincident", 2, 2, 3, 1),
    Sketcher.Constraint("Coincident", 3, 2, 0, 1),
    Sketcher.Constraint("Vertical", 0),
    Sketcher.Constraint("Horizontal", 1),
    Sketcher.Constraint("Vertical", 2),
    Sketcher.Constraint("Horizontal", 3),
    Sketcher.Constraint("Symmetric", 0, 2, 2, 2, -1, 1),
    Sketcher.Constraint("DistanceX", 1, 1, 1, 2, 164.2),
    Sketcher.Constraint("DistanceY", 0, 1, 0, 2, 104.2),
])
pocket10 = body.newObject("PartDesign::Pocket", "Pocket009")
pocket10.Profile = sketch12
pocket10.Length = 2.4
pocket10.Reversed = True

doc.recompute()
